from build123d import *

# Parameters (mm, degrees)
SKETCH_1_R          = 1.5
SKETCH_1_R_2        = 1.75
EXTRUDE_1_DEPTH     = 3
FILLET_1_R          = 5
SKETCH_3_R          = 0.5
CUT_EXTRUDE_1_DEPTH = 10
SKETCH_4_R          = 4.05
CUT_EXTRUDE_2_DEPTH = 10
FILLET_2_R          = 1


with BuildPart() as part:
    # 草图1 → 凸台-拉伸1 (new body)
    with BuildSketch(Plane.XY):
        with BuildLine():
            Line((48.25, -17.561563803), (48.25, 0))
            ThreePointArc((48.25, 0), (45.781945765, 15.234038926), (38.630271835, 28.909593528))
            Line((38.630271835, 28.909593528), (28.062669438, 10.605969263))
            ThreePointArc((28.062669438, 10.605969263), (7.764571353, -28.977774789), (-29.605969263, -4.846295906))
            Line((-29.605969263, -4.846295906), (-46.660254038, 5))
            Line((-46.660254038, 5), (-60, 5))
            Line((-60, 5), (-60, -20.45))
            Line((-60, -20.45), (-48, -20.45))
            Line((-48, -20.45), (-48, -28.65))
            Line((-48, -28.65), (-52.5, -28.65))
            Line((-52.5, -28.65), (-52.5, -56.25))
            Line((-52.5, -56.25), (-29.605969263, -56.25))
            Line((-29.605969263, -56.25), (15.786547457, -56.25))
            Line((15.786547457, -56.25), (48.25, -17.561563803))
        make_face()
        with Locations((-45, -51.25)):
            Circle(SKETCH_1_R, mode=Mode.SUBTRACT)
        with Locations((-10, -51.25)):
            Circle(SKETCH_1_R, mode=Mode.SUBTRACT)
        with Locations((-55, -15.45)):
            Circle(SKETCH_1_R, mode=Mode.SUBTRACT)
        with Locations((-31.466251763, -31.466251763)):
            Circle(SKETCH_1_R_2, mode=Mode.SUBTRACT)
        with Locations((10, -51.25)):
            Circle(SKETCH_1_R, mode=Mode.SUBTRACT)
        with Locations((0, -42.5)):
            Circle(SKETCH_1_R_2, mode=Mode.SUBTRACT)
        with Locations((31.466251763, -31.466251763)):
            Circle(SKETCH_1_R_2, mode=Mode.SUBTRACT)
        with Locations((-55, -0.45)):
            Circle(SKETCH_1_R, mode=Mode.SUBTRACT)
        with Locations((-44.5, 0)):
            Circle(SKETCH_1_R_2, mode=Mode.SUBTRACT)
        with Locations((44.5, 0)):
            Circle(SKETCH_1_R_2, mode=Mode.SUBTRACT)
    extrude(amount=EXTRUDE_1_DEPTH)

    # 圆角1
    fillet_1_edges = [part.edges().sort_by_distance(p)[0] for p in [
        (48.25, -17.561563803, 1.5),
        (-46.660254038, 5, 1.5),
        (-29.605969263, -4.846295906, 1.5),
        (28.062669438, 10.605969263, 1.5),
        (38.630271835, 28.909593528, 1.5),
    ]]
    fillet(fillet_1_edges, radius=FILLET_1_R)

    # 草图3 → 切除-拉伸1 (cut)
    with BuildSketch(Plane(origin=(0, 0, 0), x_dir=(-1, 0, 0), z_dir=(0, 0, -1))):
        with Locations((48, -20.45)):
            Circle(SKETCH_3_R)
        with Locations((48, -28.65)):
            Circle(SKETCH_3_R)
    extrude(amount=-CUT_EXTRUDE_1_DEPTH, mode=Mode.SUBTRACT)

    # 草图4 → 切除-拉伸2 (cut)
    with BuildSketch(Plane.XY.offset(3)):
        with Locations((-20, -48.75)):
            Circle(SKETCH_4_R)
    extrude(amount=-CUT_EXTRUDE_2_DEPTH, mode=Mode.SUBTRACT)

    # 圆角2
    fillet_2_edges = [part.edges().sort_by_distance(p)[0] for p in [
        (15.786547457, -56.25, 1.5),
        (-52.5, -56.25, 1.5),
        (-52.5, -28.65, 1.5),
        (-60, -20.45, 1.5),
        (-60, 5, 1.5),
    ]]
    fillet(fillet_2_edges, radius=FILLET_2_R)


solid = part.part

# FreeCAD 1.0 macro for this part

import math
import FreeCAD as App
import Part
import Sketcher
Q = App.Units.Quantity


def edges_at(feature, points):
    """Names of the edges that pass closest to the given points."""
    edges = feature.Shape.Edges
    near = lambda p: min(range(len(edges)), key=lambda i: edges[i].distToShape(Part.Vertex(*p))[0])
    return sorted({f"Edge{near(p) + 1}" for p in points})

doc = App.newDocument("Part")
body = doc.addObject("PartDesign::Body", "Body")

# Sketch on XY plane
sketch1 = body.newObject("Sketcher::SketchObject", "Sketch")
sketch1.AttachmentSupport = (doc.getObject("XY_Plane"), [""])
sketch1.MapMode = "FlatFace"
sketch1.addGeometry(Part.LineSegment(App.Vector(48.2, -17.6, 0), App.Vector(48.2, 0, 0)), False)
sketch1.addGeometry(Part.ArcOfCircle(Part.Circle(App.Vector(0, 0, 0), App.Vector(0, 0, 1), 48.2), math.radians(0), math.radians(37)), False)
sketch1.addGeometry(Part.LineSegment(App.Vector(38.6, 28.9, 0), App.Vector(28.1, 10.6, 0)), False)
sketch1.addGeometry(Part.ArcOfCircle(Part.Circle(App.Vector(0, 0, 0), App.Vector(0, 0, 1), 30), math.radians(-171), math.radians(21)), False)
sketch1.addGeometry(Part.LineSegment(App.Vector(-29.6, -4.8, 0), App.Vector(-46.7, 5, 0)), False)
sketch1.addGeometry(Part.LineSegment(App.Vector(-46.7, 5, 0), App.Vector(-60, 5, 0)), False)
sketch1.addGeometry(Part.LineSegment(App.Vector(-60, 5, 0), App.Vector(-60, -20.4, 0)), False)
sketch1.addGeometry(Part.LineSegment(App.Vector(-60, -20.4, 0), App.Vector(-48, -20.4, 0)), False)
sketch1.addGeometry(Part.LineSegment(App.Vector(-48, -20.4, 0), App.Vector(-48, -28.6, 0)), False)
sketch1.addGeometry(Part.LineSegment(App.Vector(-48, -28.6, 0), App.Vector(-52.5, -28.6, 0)), False)
sketch1.addGeometry(Part.LineSegment(App.Vector(-52.5, -28.6, 0), App.Vector(-52.5, -56.2, 0)), False)
sketch1.addGeometry(Part.LineSegment(App.Vector(-52.5, -56.2, 0), App.Vector(15.8, -56.2, 0)), False)
sketch1.addGeometry(Part.LineSegment(App.Vector(15.8, -56.2, 0), App.Vector(48.2, -17.6, 0)), False)
sketch1.addGeometry(Part.Circle(App.Vector(-45, -51.2, 0), App.Vector(0, 0, 1), 1.5), False)
sketch1.addGeometry(Part.Circle(App.Vector(-10, -51.2, 0), App.Vector(0, 0, 1), 1.5), False)
sketch1.addGeometry(Part.Circle(App.Vector(-31.5, -31.5, 0), App.Vector(0, 0, 1), 1.8), False)
sketch1.addGeometry(Part.Circle(App.Vector(10, -51.2, 0), App.Vector(0, 0, 1), 1.5), False)
sketch1.addGeometry(Part.Circle(App.Vector(0, -42.5, 0), App.Vector(0, 0, 1), 1.8), False)
sketch1.addGeometry(Part.Circle(App.Vector(31.5, -31.5, 0), App.Vector(0, 0, 1), 1.8), False)
sketch1.addGeometry(Part.Circle(App.Vector(-55, -15.4, 0), App.Vector(0, 0, 1), 1.5), False)
sketch1.addGeometry(Part.Circle(App.Vector(-55, -0.5, 0), App.Vector(0, 0, 1), 1.5), False)
sketch1.addGeometry(Part.Circle(App.Vector(-44.5, 0, 0), App.Vector(0, 0, 1), 1.8), False)
sketch1.addGeometry(Part.Circle(App.Vector(44.5, 0, 0), App.Vector(0, 0, 1), 1.8), False)
sketch1.addConstraint(Sketcher.Constraint("Tangent", 0, 2, 1, 1))
sketch1.addConstraint(Sketcher.Constraint("Coincident", 1, 2, 2, 1))
sketch1.addConstraint(Sketcher.Constraint("Coincident", 2, 2, 3, 2))
sketch1.addConstraint(Sketcher.Constraint("Coincident", 3, 1, 4, 1))
sketch1.addConstraint(Sketcher.Constraint("Coincident", 4, 2, 5, 1))
sketch1.addConstraint(Sketcher.Constraint("Coincident", 5, 2, 6, 1))
sketch1.addConstraint(Sketcher.Constraint("Coincident", 6, 2, 7, 1))
sketch1.addConstraint(Sketcher.Constraint("Coincident", 7, 2, 8, 1))
sketch1.addConstraint(Sketcher.Constraint("Coincident", 8, 2, 9, 1))
sketch1.addConstraint(Sketcher.Constraint("Coincident", 9, 2, 10, 1))
sketch1.addConstraint(Sketcher.Constraint("Coincident", 10, 2, 11, 1))
sketch1.addConstraint(Sketcher.Constraint("Coincident", 11, 2, 12, 1))
sketch1.addConstraint(Sketcher.Constraint("Coincident", 12, 2, 0, 1))
sketch1.addConstraint(Sketcher.Constraint("Vertical", 0))
sketch1.addConstraint(Sketcher.Constraint("Horizontal", 5))
sketch1.addConstraint(Sketcher.Constraint("Vertical", 6))
sketch1.addConstraint(Sketcher.Constraint("Horizontal", 7))
sketch1.addConstraint(Sketcher.Constraint("Vertical", 8))
sketch1.addConstraint(Sketcher.Constraint("Horizontal", 9))
sketch1.addConstraint(Sketcher.Constraint("Vertical", 10))
sketch1.addConstraint(Sketcher.Constraint("Horizontal", 11))
sketch1.addConstraint(Sketcher.Constraint("Coincident", 1, 3, -1, 1))
sketch1.addConstraint(Sketcher.Constraint("Coincident", 3, 3, -1, 1))
sketch1.addConstraint(Sketcher.Constraint("Equal", 13, 14))
sketch1.addConstraint(Sketcher.Constraint("Equal", 14, 16))
sketch1.addConstraint(Sketcher.Constraint("Equal", 15, 17))
sketch1.addConstraint(Sketcher.Constraint("Equal", 17, 18))
sketch1.addConstraint(Sketcher.Constraint("Equal", 16, 19))
sketch1.addConstraint(Sketcher.Constraint("Equal", 19, 20))
sketch1.addConstraint(Sketcher.Constraint("Equal", 18, 21))
sketch1.addConstraint(Sketcher.Constraint("Equal", 21, 22))
sketch1.addConstraint(Sketcher.Constraint("Symmetric", 21, 3, 22, 3, -1, 1))
sketch1.addConstraint(Sketcher.Constraint("Symmetric", 14, 3, 16, 3, -2))
sketch1.addConstraint(Sketcher.Constraint("Symmetric", 15, 3, 18, 3, -2))
sketch1.addConstraint(Sketcher.Constraint("PointOnObject", 17, 3, -2))
sketch1.addConstraint(Sketcher.Constraint("PointOnObject", 21, 3, -1))
sketch1.addConstraint(Sketcher.Constraint("Perpendicular", 2, 4))
sketch1.addConstraint(Sketcher.Constraint("Horizontal", 13, 3, 14, 3))
sketch1.addConstraint(Sketcher.Constraint("Vertical", 19, 3, 20, 3))
sketch1.addConstraint(Sketcher.Constraint("Diameter", 13, Q("3 mm")))
sketch1.addConstraint(Sketcher.Constraint("Radius", 3, Q("30 mm")))
sketch1.addConstraint(Sketcher.Constraint("Diameter", 15, Q("3.5 mm")))
sketch1.addConstraint(Sketcher.Constraint("DistanceX", 7, 1, 7, 2, Q("12 mm")))
sketch1.addConstraint(Sketcher.Constraint("Angle", 2, Q("-120 deg")))
sketch1.addConstraint(Sketcher.Constraint("Angle", 12, Q("50 deg")))
sketch1.addConstraint(Sketcher.Constraint("Radius", 1, Q("48.25 mm")))
sketch1.addConstraint(Sketcher.Constraint("DistanceX", 9, 2, 9, 1, Q("4.5 mm")))
sketch1.addConstraint(Sketcher.Constraint("DistanceY", 8, 2, 8, 1, Q("8.2 mm")))
sketch1.addConstraint(Sketcher.Constraint("DistanceY", 10, 2, 10, 1, Q("27.6 mm")))
sketch1.addConstraint(Sketcher.Constraint("DistanceX", 13, 3, -1, 1, Q("45 mm")))
sketch1.addConstraint(Sketcher.Constraint("DistanceX", 14, 3, -1, 1, Q("10 mm")))
sketch1.addConstraint(Sketcher.Constraint("DistanceX", 19, 3, -1, 1, Q("55 mm")))
sketch1.addConstraint(Sketcher.Constraint("DistanceY", -1, 1, 4, 2, Q("5 mm")))
sketch1.addConstraint(Sketcher.Constraint("DistanceX", 5, 2, -1, 1, Q("60 mm")))
sketch1.addConstraint(Sketcher.Constraint("DistanceY", 19, 3, 20, 3, Q("15 mm")))
sketch1.addConstraint(Sketcher.Constraint("DistanceY", 6, 2, 19, 3, Q("5 mm")))
sketch1.addConstraint(Sketcher.Constraint("DistanceY", 10, 2, 13, 3, Q("5 mm")))
sketch1.addConstraint(Sketcher.Constraint("DistanceY", 6, 2, 6, 1, Q("25.45 mm")))
sketch1.addConstraint(Sketcher.Constraint("DistanceY", 17, 3, -1, 1, Q("42.5 mm")))
sketch1.addConstraint(Sketcher.Constraint("DistanceX", 21, 3, -1, 1, Q("44.5 mm")))
sketch1.addConstraint(Sketcher.Constraint("DistanceX", 15, 3, 11, 2, Q("47.252799 mm")))
sketch1.addConstraint(Sketcher.Constraint("Distance", 4, Q("19.692592 mm")))
sketch1.addConstraint(Sketcher.Constraint("DistanceX", 11, 1, 11, 2, Q("68.286547 mm")))
sketch1.addConstraint(Sketcher.Constraint("DistanceY", 15, 3, -1, 1, Q("31.466252 mm")))
sketch1.addConstraint(Sketcher.Constraint("DistanceX", -1, 1, 1, 2, Q("38.630272 mm")))
pad1 = body.newObject("PartDesign::Pad", "Pad")
pad1.Profile = sketch1
pad1.Length = 3
doc.recompute()

fillet = body.newObject("PartDesign::Fillet", "Fillet")
fillet.Base = (pad1, edges_at(pad1, [
    (48.25, -17.562, 1.5),
    (-46.66, 5, 1.5),
    (-29.606, -4.846, 1.5),
    (28.063, 10.606, 1.5),
    (38.63, 28.91, 1.5),
]))
fillet.Radius = 5

# Sketch on XY plane
sketch2 = body.newObject("Sketcher::SketchObject", "Sketch001")
sketch2.AttachmentSupport = (doc.getObject("XY_Plane"), [""])
sketch2.MapMode = "FlatFace"
sketch2.addGeometry(Part.Circle(App.Vector(-48, -20.4, 0), App.Vector(0, 0, 1), 0.5), False)
sketch2.addGeometry(Part.Circle(App.Vector(-48, -28.6, 0), App.Vector(0, 0, 1), 0.5), False)
sketch2.addConstraint(Sketcher.Constraint("Equal", 0, 1))
sketch2.addConstraint(Sketcher.Constraint("Vertical", 0, 3, 1, 3))
sketch2.addConstraint(Sketcher.Constraint("Diameter", 0, Q("1 mm")))
sketch2.addConstraint(Sketcher.Constraint("DistanceX", 0, 3, -1, 1, Q("48 mm")))
sketch2.addConstraint(Sketcher.Constraint("DistanceY", 1, 3, 0, 3, Q("8.2 mm")))
sketch2.addConstraint(Sketcher.Constraint("DistanceY", 0, 3, -1, 1, Q("20.45 mm")))
pocket1 = body.newObject("PartDesign::Pocket", "Pocket")
pocket1.Profile = sketch2
pocket1.Length = 10
pocket1.Reversed = True

# Sketch on XY plane
sketch3 = body.newObject("Sketcher::SketchObject", "Sketch002")
sketch3.AttachmentSupport = (doc.getObject("XY_Plane"), [""])
sketch3.MapMode = "FlatFace"
sketch3.AttachmentOffset = App.Placement(App.Vector(0, 0, 3), App.Rotation())
sketch3.addGeometry(Part.Circle(App.Vector(-20, -48.8, 0), App.Vector(0, 0, 1), 4), False)
sketch3.addConstraint(Sketcher.Constraint("Diameter", 0, Q("8.1 mm")))
sketch3.addConstraint(Sketcher.Constraint("DistanceX", 0, 3, -1, 1, Q("20 mm")))
sketch3.addConstraint(Sketcher.Constraint("DistanceY", 0, 3, -1, 1, Q("48.75 mm")))
pocket2 = body.newObject("PartDesign::Pocket", "Pocket001")
pocket2.Profile = sketch3
pocket2.Length = 10
doc.recompute()

fillet2 = body.newObject("PartDesign::Fillet", "Fillet001")
fillet2.Base = (pocket2, edges_at(pocket2, [
    (15.787, -56.25, 1.5),
    (-52.5, -56.25, 1.5),
    (-52.5, -28.65, 1.5),
    (-60, -20.45, 1.5),
    (-60, 5, 1.5),
]))
fillet2.Radius = 1

doc.recompute()
